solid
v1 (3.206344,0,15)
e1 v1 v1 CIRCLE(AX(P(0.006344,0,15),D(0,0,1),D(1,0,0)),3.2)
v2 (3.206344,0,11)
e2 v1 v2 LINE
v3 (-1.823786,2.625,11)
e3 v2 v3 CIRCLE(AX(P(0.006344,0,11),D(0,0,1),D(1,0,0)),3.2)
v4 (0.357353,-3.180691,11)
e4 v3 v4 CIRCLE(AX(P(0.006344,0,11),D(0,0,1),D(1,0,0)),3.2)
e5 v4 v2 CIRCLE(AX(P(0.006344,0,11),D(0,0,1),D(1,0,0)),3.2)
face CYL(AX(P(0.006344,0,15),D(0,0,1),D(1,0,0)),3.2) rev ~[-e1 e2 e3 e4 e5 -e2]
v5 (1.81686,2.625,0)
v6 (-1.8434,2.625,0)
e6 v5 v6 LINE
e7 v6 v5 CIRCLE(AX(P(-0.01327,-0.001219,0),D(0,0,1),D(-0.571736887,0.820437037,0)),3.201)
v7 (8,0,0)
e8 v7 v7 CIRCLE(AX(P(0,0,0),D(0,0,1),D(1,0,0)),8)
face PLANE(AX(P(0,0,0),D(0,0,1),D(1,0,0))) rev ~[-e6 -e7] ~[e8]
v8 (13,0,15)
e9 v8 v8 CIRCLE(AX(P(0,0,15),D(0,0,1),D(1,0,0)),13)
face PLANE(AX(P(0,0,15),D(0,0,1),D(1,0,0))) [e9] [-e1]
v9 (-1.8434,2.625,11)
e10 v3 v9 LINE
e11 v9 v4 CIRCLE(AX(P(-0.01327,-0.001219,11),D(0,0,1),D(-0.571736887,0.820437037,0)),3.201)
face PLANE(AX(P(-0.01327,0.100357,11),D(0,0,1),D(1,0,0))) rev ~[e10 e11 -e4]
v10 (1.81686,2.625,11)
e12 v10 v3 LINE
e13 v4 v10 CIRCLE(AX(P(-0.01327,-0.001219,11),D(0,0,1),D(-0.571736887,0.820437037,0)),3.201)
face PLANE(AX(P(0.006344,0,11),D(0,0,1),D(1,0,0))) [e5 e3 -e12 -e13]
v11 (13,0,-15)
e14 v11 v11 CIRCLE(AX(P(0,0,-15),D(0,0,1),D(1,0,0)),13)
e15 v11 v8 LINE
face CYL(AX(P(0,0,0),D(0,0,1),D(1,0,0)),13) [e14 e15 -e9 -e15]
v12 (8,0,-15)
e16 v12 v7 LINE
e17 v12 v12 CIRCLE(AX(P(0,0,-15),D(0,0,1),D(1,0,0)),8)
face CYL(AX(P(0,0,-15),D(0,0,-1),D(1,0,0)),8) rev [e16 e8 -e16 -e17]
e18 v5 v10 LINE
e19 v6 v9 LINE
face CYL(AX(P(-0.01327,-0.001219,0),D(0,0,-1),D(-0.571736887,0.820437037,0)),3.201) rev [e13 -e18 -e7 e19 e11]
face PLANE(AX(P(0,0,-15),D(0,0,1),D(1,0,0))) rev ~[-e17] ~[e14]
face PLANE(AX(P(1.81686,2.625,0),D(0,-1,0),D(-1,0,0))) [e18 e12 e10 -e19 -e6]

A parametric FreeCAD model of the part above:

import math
import FreeCAD as App
import Part
import Sketcher

V = App.Vector

doc = App.newDocument("Part")
body = doc.addObject("PartDesign::Body", "Body")

sketch1 = body.newObject("Sketcher::SketchObject", "Sketch")
sketch1.AttachmentSupport = (doc.getObject("XY_Plane"), [""])
sketch1.MapMode = "FlatFace"
sketch1.addGeometry(Part.Circle(V(0, 0, 0), V(0, 0, 1), 13), False)
sketch1.addConstraint(Sketcher.Constraint("Coincident", 0, 3, -1, 1))
sketch1.addConstraint(Sketcher.Constraint("Diameter", 0, 26.0))
pad1 = body.newObject("PartDesign::Pad", "Pad")
pad1.Profile = sketch1
pad1.Length = 30
pad1.Midplane = True

sketch2 = body.newObject("Sketcher::SketchObject", "Sketch001")
sketch2.AttachmentSupport = (doc.getObject("XY_Plane"), [""])
sketch2.MapMode = "FlatFace"
sketch2.AttachmentOffset = App.Placement(V(0, 0, -15), App.Rotation())
sketch2.addGeometry(Part.Circle(V(0, 0, 0), V(0, 0, 1), 8), False)
sketch2.addConstraint(Sketcher.Constraint("Coincident", 0, 3, -1, 1))
sketch2.addConstraint(Sketcher.Constraint("Diameter", 0, 16.0))
pocket1 = body.newObject("PartDesign::Pocket", "Pocket")
pocket1.Profile = sketch2
pocket1.Length = 15
pocket1.Reversed = True

sketch3 = body.newObject("Sketcher::SketchObject", "Sketch002")
sketch3.AttachmentSupport = (doc.getObject("XY_Plane"), [""])
sketch3.MapMode = "FlatFace"
sketch3.AttachmentOffset = App.Placement(V(0, 0, 15), App.Rotation())
sketch3.addGeometry(Part.Circle(V(0, 0, 0), V(0, 0, 1), 3.2), False)
sketch3.addConstraint(Sketcher.Constraint("PointOnObject", 0, 3, -1))
sketch3.addConstraint(Sketcher.Constraint("Diameter", 0, 6.4))
sketch3.addConstraint(Sketcher.Constraint("DistanceX", -1, 1, 0, 3, 0.006344))
pocket2 = body.newObject("PartDesign::Pocket", "Pocket001")
pocket2.Profile = sketch3
pocket2.Length = 4

sketch4 = body.newObject("Sketcher::SketchObject", "Sketch003")
sketch4.AttachmentSupport = (doc.getObject("XY_Plane"), [""])
sketch4.MapMode = "FlatFace"
sketch4.addGeometry(Part.LineSegment(V(1.8, 2.6, 0), V(-1.8, 2.6, 0)), False)
sketch4.addGeometry(Part.ArcOfCircle(Part.Circle(V(0, 0, 0), V(0, 0, 1), 3.2), math.radians(125), math.radians(415)), False)
sketch4.addConstraint(Sketcher.Constraint("Coincident", 0, 1, 1, 2))
sketch4.addConstraint(Sketcher.Constraint("Coincident", 1, 1, 0, 2))
sketch4.addConstraint(Sketcher.Constraint("Horizontal", 0))
sketch4.addConstraint(Sketcher.Constraint("Radius", 1, 3.201))
sketch4.addConstraint(Sketcher.Constraint("DistanceY", -1, 1, 0, 1, 2.625))
sketch4.addConstraint(Sketcher.Constraint("DistanceX", 0, 2, 0, 1, 3.66026))
sketch4.addConstraint(Sketcher.Constraint("DistanceX", 1, 1, -1, 1, 1.8434))
pocket3 = body.newObject("PartDesign::Pocket", "Pocket002")
pocket3.Profile = sketch4
pocket3.Length = 11
pocket3.Reversed = True

doc.recompute()
